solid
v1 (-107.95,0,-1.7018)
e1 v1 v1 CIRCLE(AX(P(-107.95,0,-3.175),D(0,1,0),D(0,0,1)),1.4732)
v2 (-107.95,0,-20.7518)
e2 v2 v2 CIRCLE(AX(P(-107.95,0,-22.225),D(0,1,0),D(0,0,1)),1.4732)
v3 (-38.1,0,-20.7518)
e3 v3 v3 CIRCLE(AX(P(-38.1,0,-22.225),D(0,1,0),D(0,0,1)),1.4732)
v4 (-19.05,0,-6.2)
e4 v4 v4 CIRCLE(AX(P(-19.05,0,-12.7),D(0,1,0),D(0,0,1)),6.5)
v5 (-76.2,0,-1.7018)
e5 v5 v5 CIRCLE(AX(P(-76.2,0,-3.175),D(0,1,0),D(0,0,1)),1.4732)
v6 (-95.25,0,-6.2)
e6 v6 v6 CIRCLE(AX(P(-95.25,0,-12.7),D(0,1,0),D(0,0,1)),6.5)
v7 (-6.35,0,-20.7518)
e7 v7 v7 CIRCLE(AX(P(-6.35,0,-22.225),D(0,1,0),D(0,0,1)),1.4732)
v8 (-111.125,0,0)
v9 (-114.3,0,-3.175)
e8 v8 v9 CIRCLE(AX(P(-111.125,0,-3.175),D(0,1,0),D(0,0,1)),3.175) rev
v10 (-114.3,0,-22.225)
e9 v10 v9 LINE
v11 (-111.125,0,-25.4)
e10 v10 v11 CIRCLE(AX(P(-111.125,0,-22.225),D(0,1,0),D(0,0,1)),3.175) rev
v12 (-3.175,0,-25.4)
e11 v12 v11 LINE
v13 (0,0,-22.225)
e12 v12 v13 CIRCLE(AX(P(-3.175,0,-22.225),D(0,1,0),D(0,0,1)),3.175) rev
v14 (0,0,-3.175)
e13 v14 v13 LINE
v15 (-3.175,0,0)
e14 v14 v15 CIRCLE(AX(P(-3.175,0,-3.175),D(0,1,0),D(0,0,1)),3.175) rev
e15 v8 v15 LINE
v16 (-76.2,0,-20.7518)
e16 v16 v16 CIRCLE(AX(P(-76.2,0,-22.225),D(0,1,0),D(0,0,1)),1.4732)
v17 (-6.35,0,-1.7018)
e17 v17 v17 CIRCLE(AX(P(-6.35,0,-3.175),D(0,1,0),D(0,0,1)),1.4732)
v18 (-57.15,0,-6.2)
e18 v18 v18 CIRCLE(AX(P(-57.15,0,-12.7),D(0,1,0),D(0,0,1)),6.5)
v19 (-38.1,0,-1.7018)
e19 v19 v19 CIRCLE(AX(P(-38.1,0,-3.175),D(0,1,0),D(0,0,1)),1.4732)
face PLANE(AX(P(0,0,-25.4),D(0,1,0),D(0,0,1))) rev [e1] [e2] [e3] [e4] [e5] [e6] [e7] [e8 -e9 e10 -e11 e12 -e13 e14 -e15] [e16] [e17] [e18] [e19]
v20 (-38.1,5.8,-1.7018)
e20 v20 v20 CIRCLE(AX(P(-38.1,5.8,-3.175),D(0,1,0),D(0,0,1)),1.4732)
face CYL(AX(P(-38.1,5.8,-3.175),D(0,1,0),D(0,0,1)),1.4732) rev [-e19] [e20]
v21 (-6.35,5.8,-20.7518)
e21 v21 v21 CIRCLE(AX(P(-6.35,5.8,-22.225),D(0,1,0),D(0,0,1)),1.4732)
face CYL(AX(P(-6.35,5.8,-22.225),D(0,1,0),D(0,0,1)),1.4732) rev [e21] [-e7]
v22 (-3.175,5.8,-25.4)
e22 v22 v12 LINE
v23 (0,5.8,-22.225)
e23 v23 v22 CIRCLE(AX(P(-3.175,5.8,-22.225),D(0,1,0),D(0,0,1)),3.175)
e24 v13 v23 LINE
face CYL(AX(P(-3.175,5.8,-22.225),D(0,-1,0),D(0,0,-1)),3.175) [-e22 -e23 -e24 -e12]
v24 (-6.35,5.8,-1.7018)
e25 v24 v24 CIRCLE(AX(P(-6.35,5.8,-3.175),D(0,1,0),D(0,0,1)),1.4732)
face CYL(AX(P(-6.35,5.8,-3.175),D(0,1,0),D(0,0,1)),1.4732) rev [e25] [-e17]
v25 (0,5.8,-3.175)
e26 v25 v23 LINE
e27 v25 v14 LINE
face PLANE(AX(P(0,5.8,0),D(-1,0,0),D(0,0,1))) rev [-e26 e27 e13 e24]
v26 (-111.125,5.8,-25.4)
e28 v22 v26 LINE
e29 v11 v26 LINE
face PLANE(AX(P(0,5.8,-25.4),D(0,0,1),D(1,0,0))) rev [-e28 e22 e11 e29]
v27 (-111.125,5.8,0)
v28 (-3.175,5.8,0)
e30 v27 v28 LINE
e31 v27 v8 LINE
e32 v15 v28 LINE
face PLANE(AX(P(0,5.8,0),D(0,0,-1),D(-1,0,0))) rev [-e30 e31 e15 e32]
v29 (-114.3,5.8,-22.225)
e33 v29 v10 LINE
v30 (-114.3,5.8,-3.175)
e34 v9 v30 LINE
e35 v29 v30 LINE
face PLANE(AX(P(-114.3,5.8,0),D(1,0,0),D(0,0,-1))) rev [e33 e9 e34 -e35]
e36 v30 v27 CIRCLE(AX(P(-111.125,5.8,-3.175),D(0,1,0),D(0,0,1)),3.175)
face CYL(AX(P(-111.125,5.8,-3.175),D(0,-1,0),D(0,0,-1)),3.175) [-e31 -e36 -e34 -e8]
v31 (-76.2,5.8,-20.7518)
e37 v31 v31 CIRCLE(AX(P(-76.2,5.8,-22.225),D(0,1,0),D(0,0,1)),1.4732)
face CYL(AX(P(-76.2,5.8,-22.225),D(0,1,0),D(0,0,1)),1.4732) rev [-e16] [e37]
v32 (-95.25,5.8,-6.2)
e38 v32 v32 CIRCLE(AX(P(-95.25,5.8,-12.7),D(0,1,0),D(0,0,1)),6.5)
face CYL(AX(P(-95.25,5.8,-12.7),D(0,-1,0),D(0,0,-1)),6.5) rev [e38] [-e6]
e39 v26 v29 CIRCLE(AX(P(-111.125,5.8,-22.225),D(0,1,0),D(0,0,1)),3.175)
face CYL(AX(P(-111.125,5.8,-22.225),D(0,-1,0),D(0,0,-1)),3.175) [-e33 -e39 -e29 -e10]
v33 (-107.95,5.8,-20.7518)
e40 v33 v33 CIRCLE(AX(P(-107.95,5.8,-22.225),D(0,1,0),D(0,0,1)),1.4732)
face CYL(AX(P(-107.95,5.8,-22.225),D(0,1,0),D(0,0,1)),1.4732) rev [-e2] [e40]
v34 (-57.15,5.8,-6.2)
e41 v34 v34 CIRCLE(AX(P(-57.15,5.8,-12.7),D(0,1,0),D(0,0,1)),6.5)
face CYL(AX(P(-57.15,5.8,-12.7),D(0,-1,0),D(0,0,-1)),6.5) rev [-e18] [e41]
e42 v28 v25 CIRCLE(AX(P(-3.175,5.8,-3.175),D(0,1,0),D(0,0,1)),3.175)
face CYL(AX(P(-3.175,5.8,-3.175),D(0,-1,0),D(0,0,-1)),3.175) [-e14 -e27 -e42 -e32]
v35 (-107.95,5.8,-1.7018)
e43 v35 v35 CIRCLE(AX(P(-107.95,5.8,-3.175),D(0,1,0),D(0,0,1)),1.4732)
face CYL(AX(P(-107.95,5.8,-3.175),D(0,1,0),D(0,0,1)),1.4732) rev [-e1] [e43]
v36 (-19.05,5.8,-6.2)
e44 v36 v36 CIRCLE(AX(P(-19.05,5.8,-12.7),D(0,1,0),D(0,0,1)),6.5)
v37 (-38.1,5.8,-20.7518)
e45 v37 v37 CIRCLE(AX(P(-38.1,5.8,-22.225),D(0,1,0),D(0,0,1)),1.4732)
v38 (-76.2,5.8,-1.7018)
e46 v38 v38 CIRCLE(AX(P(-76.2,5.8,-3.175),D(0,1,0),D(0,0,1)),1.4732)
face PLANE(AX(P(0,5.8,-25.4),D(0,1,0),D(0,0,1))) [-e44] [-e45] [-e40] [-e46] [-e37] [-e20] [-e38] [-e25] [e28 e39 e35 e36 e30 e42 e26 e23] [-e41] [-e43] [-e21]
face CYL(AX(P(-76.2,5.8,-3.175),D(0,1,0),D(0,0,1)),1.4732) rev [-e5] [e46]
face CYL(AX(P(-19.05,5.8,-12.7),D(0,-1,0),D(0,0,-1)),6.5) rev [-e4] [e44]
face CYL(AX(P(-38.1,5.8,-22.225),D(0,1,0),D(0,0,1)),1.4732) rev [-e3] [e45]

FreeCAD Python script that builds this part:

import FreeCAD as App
import Part
import Sketcher
Q = App.Units.Quantity


def edges_at(feature, points):
    """Names of the edges that pass closest to the given points."""
    edges = feature.Shape.Edges
    near = lambda p: min(range(len(edges)), key=lambda i: edges[i].distToShape(Part.Vertex(*p))[0])
    return sorted({f"Edge{near(p) + 1}" for p in points})


def add_polygon(sketch, points):
    """Adds a closed chain of lines whose ends are joined by coincident constraints."""
    first, n = sketch.GeometryCount, len(points)
    for a, b in zip(points, points[1:] + points[:1]):
        sketch.addGeometry(Part.LineSegment(App.Vector(*a, 0), App.Vector(*b, 0)), False)
    for i in range(n):
        sketch.addConstraint(Sketcher.Constraint("Coincident", first + i, 2, first + (i + 1) % n, 1))

doc = App.newDocument("Part")
body = doc.addObject("PartDesign::Body", "Body")

sketch1 = body.newObject("Sketcher::SketchObject", "Sketch")
sketch1.AttachmentSupport = (doc.getObject("XZ_Plane"), [""])
sketch1.MapMode = "FlatFace"
add_polygon(sketch1, [(-114, -25), (-114, 0), (0, 0), (0, -25)])
sketch1.addGeometry(Part.Circle(App.Vector(-95, -13, 0), App.Vector(0, 0, 1), 6), False)
sketch1.addGeometry(Part.Circle(App.Vector(-57, -13, 0), App.Vector(0, 0, 1), 6), False)
sketch1.addGeometry(Part.Circle(App.Vector(-19, -13, 0), App.Vector(0, 0, 1), 6), False)
sketch1.addConstraint(Sketcher.Constraint("Vertical", 0))
sketch1.addConstraint(Sketcher.Constraint("Horizontal", 1))
sketch1.addConstraint(Sketcher.Constraint("Vertical", 2))
sketch1.addConstraint(Sketcher.Constraint("Horizontal", 3))
sketch1.addConstraint(Sketcher.Constraint("Coincident", 1, 2, -1, 1))
sketch1.addConstraint(Sketcher.Constraint("Equal", 4, 5))
sketch1.addConstraint(Sketcher.Constraint("Equal", 5, 6))
sketch1.addConstraint(Sketcher.Constraint("Horizontal", 4, 3, 5, 3))
sketch1.addConstraint(Sketcher.Constraint("Horizontal", 5, 3, 6, 3))
sketch1.addConstraint(Sketcher.Constraint("DistanceY", 0, 1, 0, 2, Q("1 in")))
sketch1.addConstraint(Sketcher.Constraint("DistanceX", 1, 1, 1, 2, Q("4.5 in")))
sketch1.addConstraint(Sketcher.Constraint("DistanceX", 4, 3, 6, 3, Q("3 in")))
sketch1.addConstraint(Sketcher.Constraint("DistanceY", 4, 3, -1, 1, Q("0.5 in")))
sketch1.addConstraint(Sketcher.Constraint("DistanceX", 4, 3, 5, 3, Q("1.5 in")))
sketch1.addConstraint(Sketcher.Constraint("Diameter", 4, 13.0))
sketch1.addConstraint(Sketcher.Constraint("DistanceX", 4, 3, -1, 1, Q("3.75 in")))
pad1 = body.newObject("PartDesign::Pad", "Pad")
pad1.Profile = sketch1
pad1.Length = 5.8
pad1.Reversed = True

sketch2 = body.newObject("Sketcher::SketchObject", "Sketch001")
sketch2.AttachmentSupport = (doc.getObject("XZ_Plane"), [""])
sketch2.MapMode = "FlatFace"
sketch2.AttachmentOffset = App.Placement(App.Vector(0, 0, -5.8), App.Rotation())
sketch2.addGeometry(Part.Circle(App.Vector(-108, -22.2, 0), App.Vector(0, 0, 1), 1.5), False)
sketch2.addGeometry(Part.Circle(App.Vector(-108, -3.2, 0), App.Vector(0, 0, 1), 1.5), False)
sketch2.addGeometry(Part.Circle(App.Vector(-76.2, -22.2, 0), App.Vector(0, 0, 1), 1.5), False)
sketch2.addGeometry(Part.Circle(App.Vector(-76.2, -3.2, 0), App.Vector(0, 0, 1), 1.5), False)
sketch2.addGeometry(Part.Circle(App.Vector(-6.3, -22.2, 0), App.Vector(0, 0, 1), 1.5), False)
sketch2.addGeometry(Part.Circle(App.Vector(-38.1, -22.2, 0), App.Vector(0, 0, 1), 1.5), False)
sketch2.addGeometry(Part.Circle(App.Vector(-38.1, -3.2, 0), App.Vector(0, 0, 1), 1.5), False)
sketch2.addGeometry(Part.Circle(App.Vector(-6.3, -3.2, 0), App.Vector(0, 0, 1), 1.5), False)
sketch2.addConstraint(Sketcher.Constraint("Equal", 0, 1))
sketch2.addConstraint(Sketcher.Constraint("Equal", 1, 2))
sketch2.addConstraint(Sketcher.Constraint("Equal", 2, 3))
sketch2.addConstraint(Sketcher.Constraint("Equal", 3, 4))
sketch2.addConstraint(Sketcher.Constraint("Equal", 4, 5))
sketch2.addConstraint(Sketcher.Constraint("Equal", 5, 6))
sketch2.addConstraint(Sketcher.Constraint("Equal", 6, 7))
sketch2.addConstraint(Sketcher.Constraint("Horizontal", 0, 3, 2, 3))
sketch2.addConstraint(Sketcher.Constraint("Horizontal", 1, 3, 3, 3))
sketch2.addConstraint(Sketcher.Constraint("Horizontal", 2, 3, 4, 3))
sketch2.addConstraint(Sketcher.Constraint("Horizontal", 4, 3, 5, 3))
sketch2.addConstraint(Sketcher.Constraint("Horizontal", 3, 3, 6, 3))
sketch2.addConstraint(Sketcher.Constraint("Horizontal", 6, 3, 7, 3))
sketch2.addConstraint(Sketcher.Constraint("Vertical", 0, 3, 1, 3))
sketch2.addConstraint(Sketcher.Constraint("Vertical", 2, 3, 3, 3))
sketch2.addConstraint(Sketcher.Constraint("Vertical", 5, 3, 6, 3))
sketch2.addConstraint(Sketcher.Constraint("Vertical", 4, 3, 7, 3))
sketch2.addConstraint(Sketcher.Constraint("Diameter", 0, Q("0.116 in")))
sketch2.addConstraint(Sketcher.Constraint("DistanceX", 2, 3, -1, 1, Q("3 in")))
sketch2.addConstraint(Sketcher.Constraint("DistanceX", 0, 3, 4, 3, Q("4 in")))
sketch2.addConstraint(Sketcher.Constraint("DistanceX", 5, 3, -1, 1, Q("1.5 in")))
sketch2.addConstraint(Sketcher.Constraint("DistanceX", 0, 3, -1, 1, Q("4.25 in")))
sketch2.addConstraint(Sketcher.Constraint("DistanceY", 0, 3, 1, 3, Q("0.75 in")))
sketch2.addConstraint(Sketcher.Constraint("DistanceY", 0, 3, -1, 1, Q("0.875 in")))
doc.recompute()
hole = body.newObject("PartDesign::Hole", "Hole")
hole.Profile = sketch2
hole.ThreadType = "None"
hole.Diameter = Q("0.116 in")
hole.DepthType = "ThroughAll"
hole.Reversed = True
doc.recompute()

fillet = body.newObject("PartDesign::Fillet", "Fillet")
fillet.Base = (hole, edges_at(hole, [
    (0, 2.9, 0),
    (-114.3, 2.9, 0),
    (-114.3, 2.9, -25.4),
    (0, 2.9, -25.4),
]))
fillet.Radius = Q("0.125 in")

doc.recompute()
